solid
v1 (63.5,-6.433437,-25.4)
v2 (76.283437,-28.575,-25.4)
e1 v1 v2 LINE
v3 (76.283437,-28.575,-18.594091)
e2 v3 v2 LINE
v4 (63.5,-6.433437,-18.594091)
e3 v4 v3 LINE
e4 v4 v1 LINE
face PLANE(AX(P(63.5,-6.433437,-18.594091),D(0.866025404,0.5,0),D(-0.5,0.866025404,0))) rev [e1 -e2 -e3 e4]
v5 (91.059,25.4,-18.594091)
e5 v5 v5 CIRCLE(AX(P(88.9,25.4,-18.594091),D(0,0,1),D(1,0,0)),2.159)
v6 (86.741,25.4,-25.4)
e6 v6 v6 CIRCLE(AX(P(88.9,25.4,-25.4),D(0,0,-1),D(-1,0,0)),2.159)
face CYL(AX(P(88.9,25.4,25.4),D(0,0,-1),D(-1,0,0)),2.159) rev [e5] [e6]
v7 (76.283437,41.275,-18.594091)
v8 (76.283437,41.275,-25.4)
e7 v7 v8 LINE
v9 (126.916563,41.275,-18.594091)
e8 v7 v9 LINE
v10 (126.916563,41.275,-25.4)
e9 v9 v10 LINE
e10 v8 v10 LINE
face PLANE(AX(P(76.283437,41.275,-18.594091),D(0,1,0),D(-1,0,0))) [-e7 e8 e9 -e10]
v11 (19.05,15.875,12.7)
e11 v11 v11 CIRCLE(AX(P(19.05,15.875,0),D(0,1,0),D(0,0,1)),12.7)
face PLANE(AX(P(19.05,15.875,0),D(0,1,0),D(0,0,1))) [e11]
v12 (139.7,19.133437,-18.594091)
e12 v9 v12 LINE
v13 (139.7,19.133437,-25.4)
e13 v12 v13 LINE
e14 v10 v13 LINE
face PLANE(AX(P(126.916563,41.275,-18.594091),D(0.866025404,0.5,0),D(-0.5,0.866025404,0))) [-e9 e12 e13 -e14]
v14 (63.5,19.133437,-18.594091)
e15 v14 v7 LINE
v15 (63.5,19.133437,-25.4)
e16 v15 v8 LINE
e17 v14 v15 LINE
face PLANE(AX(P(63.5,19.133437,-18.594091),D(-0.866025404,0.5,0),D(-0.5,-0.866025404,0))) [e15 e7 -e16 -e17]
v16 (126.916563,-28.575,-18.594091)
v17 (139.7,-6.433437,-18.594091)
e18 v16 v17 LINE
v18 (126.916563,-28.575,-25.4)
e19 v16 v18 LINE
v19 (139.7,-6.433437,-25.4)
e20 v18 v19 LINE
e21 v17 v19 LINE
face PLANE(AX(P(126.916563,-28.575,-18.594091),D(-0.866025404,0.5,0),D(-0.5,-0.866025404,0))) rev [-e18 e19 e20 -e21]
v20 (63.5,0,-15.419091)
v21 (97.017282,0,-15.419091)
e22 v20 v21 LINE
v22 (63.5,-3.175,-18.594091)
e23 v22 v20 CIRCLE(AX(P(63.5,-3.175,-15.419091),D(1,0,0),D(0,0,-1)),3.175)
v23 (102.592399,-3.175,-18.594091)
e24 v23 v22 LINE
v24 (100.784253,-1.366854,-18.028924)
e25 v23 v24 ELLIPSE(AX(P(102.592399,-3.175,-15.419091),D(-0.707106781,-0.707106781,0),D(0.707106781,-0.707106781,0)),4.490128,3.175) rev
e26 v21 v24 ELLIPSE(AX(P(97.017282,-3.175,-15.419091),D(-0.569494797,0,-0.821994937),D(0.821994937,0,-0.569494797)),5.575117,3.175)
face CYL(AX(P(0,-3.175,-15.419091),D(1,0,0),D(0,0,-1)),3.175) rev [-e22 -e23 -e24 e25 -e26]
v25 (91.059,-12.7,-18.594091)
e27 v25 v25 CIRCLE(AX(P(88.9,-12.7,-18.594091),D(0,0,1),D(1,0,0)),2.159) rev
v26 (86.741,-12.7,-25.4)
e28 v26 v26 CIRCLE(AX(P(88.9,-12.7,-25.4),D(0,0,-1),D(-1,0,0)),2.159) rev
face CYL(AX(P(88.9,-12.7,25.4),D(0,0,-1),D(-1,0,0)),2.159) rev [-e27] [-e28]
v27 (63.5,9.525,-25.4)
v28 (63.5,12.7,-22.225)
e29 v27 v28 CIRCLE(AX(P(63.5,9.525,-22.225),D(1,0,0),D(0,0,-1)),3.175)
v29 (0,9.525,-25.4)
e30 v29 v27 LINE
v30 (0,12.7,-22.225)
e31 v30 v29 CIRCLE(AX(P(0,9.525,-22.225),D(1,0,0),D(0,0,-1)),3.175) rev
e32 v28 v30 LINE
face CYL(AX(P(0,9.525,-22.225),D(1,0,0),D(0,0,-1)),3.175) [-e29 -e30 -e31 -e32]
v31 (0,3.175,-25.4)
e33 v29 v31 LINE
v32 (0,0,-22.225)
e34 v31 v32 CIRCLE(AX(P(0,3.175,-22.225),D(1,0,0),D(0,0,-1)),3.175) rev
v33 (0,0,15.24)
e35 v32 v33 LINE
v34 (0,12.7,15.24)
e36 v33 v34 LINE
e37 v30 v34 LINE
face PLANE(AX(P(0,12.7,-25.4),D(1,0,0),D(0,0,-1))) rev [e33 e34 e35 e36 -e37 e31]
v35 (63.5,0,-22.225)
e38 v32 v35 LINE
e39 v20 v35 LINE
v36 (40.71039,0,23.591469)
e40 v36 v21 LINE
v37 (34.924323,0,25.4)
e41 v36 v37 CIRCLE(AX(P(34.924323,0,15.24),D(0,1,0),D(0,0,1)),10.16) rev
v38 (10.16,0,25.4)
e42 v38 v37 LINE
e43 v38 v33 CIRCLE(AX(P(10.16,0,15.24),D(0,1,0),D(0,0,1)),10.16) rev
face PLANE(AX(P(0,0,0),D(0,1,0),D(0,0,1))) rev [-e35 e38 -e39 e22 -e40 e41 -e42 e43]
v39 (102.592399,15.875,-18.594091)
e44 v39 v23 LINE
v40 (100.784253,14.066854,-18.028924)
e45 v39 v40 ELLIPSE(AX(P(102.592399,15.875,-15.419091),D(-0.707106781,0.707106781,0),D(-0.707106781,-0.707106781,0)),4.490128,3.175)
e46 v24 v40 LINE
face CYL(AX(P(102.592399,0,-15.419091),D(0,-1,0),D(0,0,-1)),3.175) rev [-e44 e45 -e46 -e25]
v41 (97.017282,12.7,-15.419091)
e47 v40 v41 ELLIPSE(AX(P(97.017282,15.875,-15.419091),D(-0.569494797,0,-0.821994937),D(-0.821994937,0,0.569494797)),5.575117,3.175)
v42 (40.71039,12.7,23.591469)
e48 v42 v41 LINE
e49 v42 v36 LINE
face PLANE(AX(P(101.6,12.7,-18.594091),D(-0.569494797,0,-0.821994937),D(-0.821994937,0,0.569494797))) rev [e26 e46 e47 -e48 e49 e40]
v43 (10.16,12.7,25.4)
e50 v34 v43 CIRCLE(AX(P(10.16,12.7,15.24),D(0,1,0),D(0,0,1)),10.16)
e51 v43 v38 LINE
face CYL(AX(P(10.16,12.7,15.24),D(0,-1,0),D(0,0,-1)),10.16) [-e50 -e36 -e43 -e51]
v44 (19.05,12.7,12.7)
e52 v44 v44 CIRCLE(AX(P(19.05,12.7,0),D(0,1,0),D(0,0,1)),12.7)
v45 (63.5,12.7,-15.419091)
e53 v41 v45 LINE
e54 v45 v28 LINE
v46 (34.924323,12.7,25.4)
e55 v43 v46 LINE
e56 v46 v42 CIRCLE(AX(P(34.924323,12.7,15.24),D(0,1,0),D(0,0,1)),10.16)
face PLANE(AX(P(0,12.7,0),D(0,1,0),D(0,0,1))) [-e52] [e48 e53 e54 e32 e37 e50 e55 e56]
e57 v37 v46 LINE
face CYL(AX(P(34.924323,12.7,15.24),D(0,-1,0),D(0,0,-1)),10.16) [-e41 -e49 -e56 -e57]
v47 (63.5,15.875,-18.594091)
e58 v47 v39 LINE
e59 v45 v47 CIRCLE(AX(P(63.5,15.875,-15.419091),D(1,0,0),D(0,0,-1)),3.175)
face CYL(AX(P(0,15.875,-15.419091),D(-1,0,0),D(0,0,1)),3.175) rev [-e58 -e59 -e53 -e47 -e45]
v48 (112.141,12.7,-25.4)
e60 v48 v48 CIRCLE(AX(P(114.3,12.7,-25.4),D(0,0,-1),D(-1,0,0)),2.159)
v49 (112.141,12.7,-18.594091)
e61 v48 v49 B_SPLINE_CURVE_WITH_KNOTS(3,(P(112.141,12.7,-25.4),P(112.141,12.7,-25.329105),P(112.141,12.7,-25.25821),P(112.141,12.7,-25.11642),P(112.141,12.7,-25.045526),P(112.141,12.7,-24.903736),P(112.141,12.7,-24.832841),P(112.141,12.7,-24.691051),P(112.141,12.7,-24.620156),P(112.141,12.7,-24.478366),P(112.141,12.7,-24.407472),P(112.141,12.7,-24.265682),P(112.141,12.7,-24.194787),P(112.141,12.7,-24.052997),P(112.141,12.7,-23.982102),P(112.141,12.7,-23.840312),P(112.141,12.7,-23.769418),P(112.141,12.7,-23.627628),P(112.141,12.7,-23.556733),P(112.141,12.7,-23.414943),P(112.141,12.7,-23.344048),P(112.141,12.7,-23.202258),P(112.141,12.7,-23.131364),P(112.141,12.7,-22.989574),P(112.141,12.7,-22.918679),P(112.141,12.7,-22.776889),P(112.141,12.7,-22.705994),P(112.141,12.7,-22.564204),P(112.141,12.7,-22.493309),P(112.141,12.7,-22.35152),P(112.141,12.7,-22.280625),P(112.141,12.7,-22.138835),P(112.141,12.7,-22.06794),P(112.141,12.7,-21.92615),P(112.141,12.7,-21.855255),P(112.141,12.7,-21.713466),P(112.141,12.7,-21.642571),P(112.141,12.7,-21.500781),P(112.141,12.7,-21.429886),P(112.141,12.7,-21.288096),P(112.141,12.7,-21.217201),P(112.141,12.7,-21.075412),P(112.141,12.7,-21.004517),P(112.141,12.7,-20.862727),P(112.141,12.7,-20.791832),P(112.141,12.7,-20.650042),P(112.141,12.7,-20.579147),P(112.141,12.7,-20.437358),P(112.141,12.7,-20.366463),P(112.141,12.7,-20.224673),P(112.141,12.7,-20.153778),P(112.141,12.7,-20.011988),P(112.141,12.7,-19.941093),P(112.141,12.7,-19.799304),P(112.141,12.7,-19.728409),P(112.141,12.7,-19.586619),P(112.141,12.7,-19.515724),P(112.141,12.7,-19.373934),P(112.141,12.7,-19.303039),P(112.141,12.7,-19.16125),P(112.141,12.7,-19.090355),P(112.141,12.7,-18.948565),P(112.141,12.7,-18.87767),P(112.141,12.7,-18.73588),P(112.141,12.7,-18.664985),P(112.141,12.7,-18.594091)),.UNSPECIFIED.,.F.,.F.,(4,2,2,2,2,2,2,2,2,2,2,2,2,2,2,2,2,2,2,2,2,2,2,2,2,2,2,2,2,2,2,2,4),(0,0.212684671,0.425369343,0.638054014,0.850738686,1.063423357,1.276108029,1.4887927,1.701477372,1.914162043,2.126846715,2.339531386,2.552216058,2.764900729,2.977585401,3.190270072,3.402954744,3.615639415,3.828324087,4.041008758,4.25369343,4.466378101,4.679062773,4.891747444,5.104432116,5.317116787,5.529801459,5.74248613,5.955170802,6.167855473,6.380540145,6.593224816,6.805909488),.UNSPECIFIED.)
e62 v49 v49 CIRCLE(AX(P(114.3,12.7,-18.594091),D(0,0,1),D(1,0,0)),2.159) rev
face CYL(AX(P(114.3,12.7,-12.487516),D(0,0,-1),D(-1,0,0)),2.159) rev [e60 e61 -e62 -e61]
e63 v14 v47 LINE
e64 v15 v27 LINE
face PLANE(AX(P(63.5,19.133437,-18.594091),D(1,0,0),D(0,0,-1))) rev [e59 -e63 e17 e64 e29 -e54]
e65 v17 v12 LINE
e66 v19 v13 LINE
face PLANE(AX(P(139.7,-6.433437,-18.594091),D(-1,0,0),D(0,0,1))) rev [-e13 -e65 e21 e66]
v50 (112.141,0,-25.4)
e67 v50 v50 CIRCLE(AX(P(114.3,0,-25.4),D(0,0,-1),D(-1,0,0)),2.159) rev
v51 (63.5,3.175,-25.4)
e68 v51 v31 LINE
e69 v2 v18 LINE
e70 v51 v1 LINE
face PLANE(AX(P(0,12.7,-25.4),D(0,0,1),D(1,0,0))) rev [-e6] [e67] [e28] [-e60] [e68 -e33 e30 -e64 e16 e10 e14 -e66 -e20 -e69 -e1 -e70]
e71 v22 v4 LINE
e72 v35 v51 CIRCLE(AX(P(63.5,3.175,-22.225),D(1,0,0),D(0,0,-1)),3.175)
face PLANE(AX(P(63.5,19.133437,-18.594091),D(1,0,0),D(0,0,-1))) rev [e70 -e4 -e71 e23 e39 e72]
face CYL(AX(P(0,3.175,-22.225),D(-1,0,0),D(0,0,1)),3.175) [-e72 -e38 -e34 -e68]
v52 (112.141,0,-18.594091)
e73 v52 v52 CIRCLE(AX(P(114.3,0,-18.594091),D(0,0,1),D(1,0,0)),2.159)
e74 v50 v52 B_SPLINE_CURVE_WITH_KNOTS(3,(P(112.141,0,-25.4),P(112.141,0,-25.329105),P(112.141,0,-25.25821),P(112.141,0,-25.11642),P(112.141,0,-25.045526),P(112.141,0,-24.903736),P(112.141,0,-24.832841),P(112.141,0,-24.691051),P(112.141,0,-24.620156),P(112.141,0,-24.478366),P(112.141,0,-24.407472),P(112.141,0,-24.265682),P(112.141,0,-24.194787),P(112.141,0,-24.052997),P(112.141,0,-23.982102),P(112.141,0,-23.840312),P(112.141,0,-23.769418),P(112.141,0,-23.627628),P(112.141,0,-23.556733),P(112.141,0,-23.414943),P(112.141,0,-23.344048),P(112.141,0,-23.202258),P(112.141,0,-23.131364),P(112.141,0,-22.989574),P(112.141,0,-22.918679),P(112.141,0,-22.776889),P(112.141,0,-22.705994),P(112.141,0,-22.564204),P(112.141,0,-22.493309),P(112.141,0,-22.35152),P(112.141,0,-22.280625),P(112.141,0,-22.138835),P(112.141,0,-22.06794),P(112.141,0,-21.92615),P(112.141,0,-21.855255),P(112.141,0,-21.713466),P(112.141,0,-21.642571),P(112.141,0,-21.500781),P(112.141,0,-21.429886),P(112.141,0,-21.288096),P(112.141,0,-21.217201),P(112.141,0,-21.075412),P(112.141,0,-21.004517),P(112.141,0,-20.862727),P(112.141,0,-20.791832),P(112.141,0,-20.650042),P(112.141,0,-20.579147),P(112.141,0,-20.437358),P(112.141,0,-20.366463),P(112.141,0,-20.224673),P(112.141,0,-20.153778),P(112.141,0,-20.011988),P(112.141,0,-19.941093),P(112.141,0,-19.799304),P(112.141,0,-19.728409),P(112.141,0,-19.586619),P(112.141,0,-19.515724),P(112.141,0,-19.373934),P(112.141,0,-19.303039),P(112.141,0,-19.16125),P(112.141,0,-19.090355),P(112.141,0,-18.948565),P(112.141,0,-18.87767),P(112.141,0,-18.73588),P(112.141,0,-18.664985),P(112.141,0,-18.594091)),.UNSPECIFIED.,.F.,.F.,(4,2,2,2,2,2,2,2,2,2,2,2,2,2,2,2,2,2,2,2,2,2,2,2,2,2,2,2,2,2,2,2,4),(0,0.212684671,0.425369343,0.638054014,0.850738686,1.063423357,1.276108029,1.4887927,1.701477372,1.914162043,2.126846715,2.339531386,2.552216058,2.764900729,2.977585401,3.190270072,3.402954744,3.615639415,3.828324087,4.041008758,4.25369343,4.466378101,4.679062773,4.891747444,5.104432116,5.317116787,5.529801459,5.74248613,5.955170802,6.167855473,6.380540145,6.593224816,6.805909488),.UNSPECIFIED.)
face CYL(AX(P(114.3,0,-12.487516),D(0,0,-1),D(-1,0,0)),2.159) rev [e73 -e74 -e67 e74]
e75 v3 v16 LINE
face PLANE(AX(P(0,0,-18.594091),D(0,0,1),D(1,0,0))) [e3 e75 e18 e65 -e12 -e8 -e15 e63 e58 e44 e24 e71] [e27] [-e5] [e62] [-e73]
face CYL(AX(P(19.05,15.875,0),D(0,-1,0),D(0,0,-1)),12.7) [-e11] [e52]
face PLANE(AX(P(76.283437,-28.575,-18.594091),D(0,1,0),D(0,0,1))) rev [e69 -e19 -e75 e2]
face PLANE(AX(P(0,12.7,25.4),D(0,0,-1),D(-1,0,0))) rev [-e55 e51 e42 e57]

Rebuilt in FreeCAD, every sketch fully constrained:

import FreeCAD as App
import Part
import Sketcher
Q = App.Units.Quantity


def edges_at(feature, points):
    """Names of the edges that pass closest to the given points."""
    edges = feature.Shape.Edges
    near = lambda p: min(range(len(edges)), key=lambda i: edges[i].distToShape(Part.Vertex(*p))[0])
    return sorted({f"Edge{near(p) + 1}" for p in points})


def add_polygon(sketch, points):
    """Adds a closed chain of lines whose ends are joined by coincident constraints."""
    first, n = sketch.GeometryCount, len(points)
    for a, b in zip(points, points[1:] + points[:1]):
        sketch.addGeometry(Part.LineSegment(App.Vector(*a, 0), App.Vector(*b, 0)), False)
    for i in range(n):
        sketch.addConstraint(Sketcher.Constraint("Coincident", first + i, 2, first + (i + 1) % n, 1))

doc = App.newDocument("Part")
body = doc.addObject("PartDesign::Body", "Body")

# Sketch on XZ plane
sketch1 = body.newObject("Sketcher::SketchObject", "Sketch")
sketch1.AttachmentSupport = (doc.getObject("XZ_Plane"), [""])
sketch1.MapMode = "FlatFace"
add_polygon(sketch1, [(102, -25), (0, -25), (0, 25), (38, 25), (102, -19)])  # lines 0-4
sketch1.addConstraint([
    Sketcher.Constraint("Horizontal", 0),
    Sketcher.Constraint("Vertical", 1),
    Sketcher.Constraint("Horizontal", 2),
    Sketcher.Constraint("Vertical", 4),
    Sketcher.Constraint("Symmetric", 0, 2, 1, 2, -1, 1),
    Sketcher.Constraint("DistanceX", 0, 2, 0, 1, Q("4 in")),
    Sketcher.Constraint("DistanceY", 1, 1, 1, 2, Q("2 in")),
    Sketcher.Constraint("DistanceX", 2, 1, 2, 2, Q("1.5 in")),
    Sketcher.Constraint("DistanceY", 4, 2, 4, 1, Q("6.805909 mm")),
])
pad1 = body.newObject("PartDesign::Pad", "Pad")
pad1.Profile = sketch1
pad1.Length = Q("0.5 in")
pad1.Reversed = True

# Sketch on XY plane
sketch2 = body.newObject("Sketcher::SketchObject", "Sketch001")
sketch2.AttachmentSupport = (doc.getObject("XY_Plane"), [""])
sketch2.MapMode = "FlatFace"
sketch2.AttachmentOffset = App.Placement(App.Vector(0, 0, -1 * 25.4), App.Rotation())
add_polygon(sketch2, [(64, -6), (64, 19), (76, 41), (127, 41), (140, 19), (140, -6), (127, -29), (76, -29)])  # lines 0-7
sketch2.addConstraint([
    Sketcher.Constraint("Vertical", 0),
    Sketcher.Constraint("Horizontal", 2),
    Sketcher.Constraint("Vertical", 4),
    Sketcher.Constraint("Horizontal", 6),
    Sketcher.Constraint("Parallel", 1, 5),
    Sketcher.Constraint("Parallel", 3, 7),
    Sketcher.Constraint("Horizontal", 0, 2, 3, 2),
    Sketcher.Constraint("Horizontal", 4, 2, 7, 2),
    Sketcher.Constraint("Vertical", 2, 2, 5, 2),
    Sketcher.Constraint("Vertical", 1, 2, 6, 2),
    Sketcher.Constraint("Angle", 1, Q("60 deg")),
    Sketcher.Constraint("DistanceX", 0, 2, 3, 2, Q("3 in")),
    Sketcher.Constraint("DistanceX", -1, 1, 0, 2, Q("2.5 in")),
    Sketcher.Constraint("DistanceY", 5, 2, 2, 2, Q("2.75 in")),
    Sketcher.Constraint("DistanceY", -1, 1, 1, 2, Q("1.625 in")),
    Sketcher.Constraint("DistanceX", 2, 1, 2, 2, Q("50.633126 mm")),
])
pad2 = body.newObject("PartDesign::Pad", "Pad001")
pad2.Profile = sketch2
pad2.Length = 6.805909

# Sketch on XY plane
sketch3 = body.newObject("Sketcher::SketchObject", "Sketch002")
sketch3.AttachmentSupport = (doc.getObject("XY_Plane"), [""])
sketch3.MapMode = "FlatFace"
sketch3.AttachmentOffset = App.Placement(App.Vector(0, 0, -1 * 25.4), App.Rotation())
sketch3.addGeometry([
    Part.Circle(App.Vector(88.9, 25.4, 0), App.Vector(0, 0, 1), 2.2),
    Part.Circle(App.Vector(88.9, -12.7, 0), App.Vector(0, 0, 1), 2.2),
], False)
sketch3.addConstraint([
    Sketcher.Constraint("Equal", 0, 1),
    Sketcher.Constraint("Vertical", 0, 3, 1, 3),
    Sketcher.Constraint("Diameter", 0, Q("0.17 in")),
    Sketcher.Constraint("DistanceY", -1, 1, 0, 3, Q("1 in")),
    Sketcher.Constraint("DistanceX", -1, 1, 0, 3, Q("3.5 in")),
    Sketcher.Constraint("DistanceY", 1, 3, -1, 1, Q("0.5 in")),
])
pocket1 = body.newObject("PartDesign::Pocket", "Pocket")
pocket1.Profile = sketch3
pocket1.Type = "ThroughAll"
pocket1.Reversed = True

# Sketch on XY plane
sketch4 = body.newObject("Sketcher::SketchObject", "Sketch003")
sketch4.AttachmentSupport = (doc.getObject("XY_Plane"), [""])
sketch4.MapMode = "FlatFace"
sketch4.AttachmentOffset = App.Placement(App.Vector(0, 0, -1 * 25.4), App.Rotation())
sketch4.addGeometry([
    Part.Circle(App.Vector(114.3, 0, 0), App.Vector(0, 0, 1), 2.2),
    Part.Circle(App.Vector(114.3, 12.7, 0), App.Vector(0, 0, 1), 2.2),
], False)
sketch4.addConstraint([
    Sketcher.Constraint("Equal", 0, 1),
    Sketcher.Constraint("PointOnObject", 0, 3, -1),
    Sketcher.Constraint("Vertical", 0, 3, 1, 3),
    Sketcher.Constraint("Diameter", 0, Q("0.17 in")),
    Sketcher.Constraint("DistanceX", -1, 1, 0, 3, Q("4.5 in")),
    Sketcher.Constraint("DistanceY", -1, 1, 1, 3, Q("0.5 in")),
])
pocket2 = body.newObject("PartDesign::Pocket", "Pocket001")
pocket2.Profile = sketch4
pocket2.Length = 6.805909
pocket2.Reversed = True
doc.recompute()

fillet = body.newObject("PartDesign::Fillet", "Fillet")
fillet.Base = (pocket2, edges_at(pocket2, [
    (101.6, 6.35, -18.594),
    (31.75, 0, -25.4),
    (82.55, 0, -18.594),
    (31.75, 12.7, -25.4),
    (82.55, 12.7, -18.594),
]))
fillet.Radius = Q("0.125 in")

# Sketch on XZ plane
sketch5 = body.newObject("Sketcher::SketchObject", "Sketch004")
sketch5.AttachmentSupport = (doc.getObject("XZ_Plane"), [""])
sketch5.MapMode = "FlatFace"
sketch5.AttachmentOffset = App.Placement(App.Vector(0, 0, -0.5 * 25.4), App.Rotation())
sketch5.addGeometry(Part.Circle(App.Vector(19, 0, 0), App.Vector(0, 0, 1), 13), False)
sketch5.addConstraint([
    Sketcher.Constraint("PointOnObject", 0, 3, -1),
    Sketcher.Constraint("Diameter", 0, Q("1 in")),
    Sketcher.Constraint("DistanceX", -1, 1, 0, 3, Q("0.75 in")),
])
pad3 = body.newObject("PartDesign::Pad", "Pad002")
pad3.Profile = sketch5
pad3.Length = Q("0.125 in")
pad3.Reversed = True
doc.recompute()

fillet2 = body.newObject("PartDesign::Fillet", "Fillet001")
fillet2.Base = (pad3, edges_at(pad3, [(38.1, 6.35, 25.4), (0, 6.35, 25.4)]))
fillet2.Radius = Q("0.4 in")

doc.recompute()
